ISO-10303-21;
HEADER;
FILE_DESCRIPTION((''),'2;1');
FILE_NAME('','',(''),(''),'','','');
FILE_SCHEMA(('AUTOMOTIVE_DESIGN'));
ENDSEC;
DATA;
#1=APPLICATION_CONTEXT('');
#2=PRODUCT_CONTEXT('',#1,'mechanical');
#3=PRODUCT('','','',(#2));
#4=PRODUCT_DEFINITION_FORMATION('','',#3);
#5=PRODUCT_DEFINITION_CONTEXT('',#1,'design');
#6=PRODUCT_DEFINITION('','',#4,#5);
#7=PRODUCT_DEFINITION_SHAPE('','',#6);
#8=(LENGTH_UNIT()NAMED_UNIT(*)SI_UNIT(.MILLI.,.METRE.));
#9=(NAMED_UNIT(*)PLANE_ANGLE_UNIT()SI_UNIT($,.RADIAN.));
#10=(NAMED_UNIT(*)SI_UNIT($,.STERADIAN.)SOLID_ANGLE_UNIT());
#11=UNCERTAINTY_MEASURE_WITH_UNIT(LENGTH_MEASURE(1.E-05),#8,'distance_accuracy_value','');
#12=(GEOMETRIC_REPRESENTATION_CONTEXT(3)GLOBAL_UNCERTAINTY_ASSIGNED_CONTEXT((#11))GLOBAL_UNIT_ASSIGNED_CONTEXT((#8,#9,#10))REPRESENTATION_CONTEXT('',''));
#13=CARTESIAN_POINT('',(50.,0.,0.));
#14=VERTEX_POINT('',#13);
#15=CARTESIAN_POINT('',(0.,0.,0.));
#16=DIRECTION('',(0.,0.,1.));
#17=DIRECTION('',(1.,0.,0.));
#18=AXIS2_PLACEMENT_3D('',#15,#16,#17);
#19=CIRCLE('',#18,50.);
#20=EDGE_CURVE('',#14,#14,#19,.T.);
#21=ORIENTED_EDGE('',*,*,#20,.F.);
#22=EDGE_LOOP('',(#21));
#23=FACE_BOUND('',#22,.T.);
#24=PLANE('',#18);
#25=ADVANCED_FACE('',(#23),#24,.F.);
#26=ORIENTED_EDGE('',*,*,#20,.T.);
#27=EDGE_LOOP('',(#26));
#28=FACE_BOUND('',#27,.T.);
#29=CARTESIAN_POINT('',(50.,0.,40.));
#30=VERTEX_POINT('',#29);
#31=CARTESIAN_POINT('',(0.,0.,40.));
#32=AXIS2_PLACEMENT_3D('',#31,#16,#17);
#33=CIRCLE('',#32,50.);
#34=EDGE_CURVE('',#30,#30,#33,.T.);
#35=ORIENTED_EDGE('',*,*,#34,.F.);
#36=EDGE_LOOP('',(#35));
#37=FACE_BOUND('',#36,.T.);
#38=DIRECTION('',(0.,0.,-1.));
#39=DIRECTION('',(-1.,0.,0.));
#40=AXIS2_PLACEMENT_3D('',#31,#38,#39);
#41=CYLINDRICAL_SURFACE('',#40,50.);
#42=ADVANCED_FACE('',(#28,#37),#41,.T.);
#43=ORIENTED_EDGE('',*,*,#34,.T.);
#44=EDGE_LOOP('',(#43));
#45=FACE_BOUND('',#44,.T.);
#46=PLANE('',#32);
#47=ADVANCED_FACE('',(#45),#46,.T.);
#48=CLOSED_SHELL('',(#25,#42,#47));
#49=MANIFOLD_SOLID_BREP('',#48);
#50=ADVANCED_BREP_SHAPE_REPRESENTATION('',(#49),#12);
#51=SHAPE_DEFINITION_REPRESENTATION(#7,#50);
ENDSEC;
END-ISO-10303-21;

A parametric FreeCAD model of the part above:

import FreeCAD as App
import Part
import Sketcher
from FreeCAD import Vector
Q = App.Units.Quantity

doc = App.newDocument("Part")
body = doc.addObject("PartDesign::Body", "Body")

sketch1 = doc.addObject("Sketcher::SketchObject", "Sketch")
body.addObject(sketch1)
sketch1.AttachmentSupport = (doc.XY_Plane, [""])
sketch1.MapMode = "FlatFace"
sketch1.addGeometry(Part.Circle(Vector(0, 0, 0), Vector(0, 0, 1), 50), False)
sketch1.addConstraint([
    Sketcher.Constraint("Coincident", 0, 3, -1, 1),
    Sketcher.Constraint("Diameter", 0, Q("100 mm")),
])
pad1 = doc.addObject("PartDesign::Pad", "Pad")
body.addObject(pad1)
pad1.Profile = sketch1
pad1.Length = 40

doc.recompute()
